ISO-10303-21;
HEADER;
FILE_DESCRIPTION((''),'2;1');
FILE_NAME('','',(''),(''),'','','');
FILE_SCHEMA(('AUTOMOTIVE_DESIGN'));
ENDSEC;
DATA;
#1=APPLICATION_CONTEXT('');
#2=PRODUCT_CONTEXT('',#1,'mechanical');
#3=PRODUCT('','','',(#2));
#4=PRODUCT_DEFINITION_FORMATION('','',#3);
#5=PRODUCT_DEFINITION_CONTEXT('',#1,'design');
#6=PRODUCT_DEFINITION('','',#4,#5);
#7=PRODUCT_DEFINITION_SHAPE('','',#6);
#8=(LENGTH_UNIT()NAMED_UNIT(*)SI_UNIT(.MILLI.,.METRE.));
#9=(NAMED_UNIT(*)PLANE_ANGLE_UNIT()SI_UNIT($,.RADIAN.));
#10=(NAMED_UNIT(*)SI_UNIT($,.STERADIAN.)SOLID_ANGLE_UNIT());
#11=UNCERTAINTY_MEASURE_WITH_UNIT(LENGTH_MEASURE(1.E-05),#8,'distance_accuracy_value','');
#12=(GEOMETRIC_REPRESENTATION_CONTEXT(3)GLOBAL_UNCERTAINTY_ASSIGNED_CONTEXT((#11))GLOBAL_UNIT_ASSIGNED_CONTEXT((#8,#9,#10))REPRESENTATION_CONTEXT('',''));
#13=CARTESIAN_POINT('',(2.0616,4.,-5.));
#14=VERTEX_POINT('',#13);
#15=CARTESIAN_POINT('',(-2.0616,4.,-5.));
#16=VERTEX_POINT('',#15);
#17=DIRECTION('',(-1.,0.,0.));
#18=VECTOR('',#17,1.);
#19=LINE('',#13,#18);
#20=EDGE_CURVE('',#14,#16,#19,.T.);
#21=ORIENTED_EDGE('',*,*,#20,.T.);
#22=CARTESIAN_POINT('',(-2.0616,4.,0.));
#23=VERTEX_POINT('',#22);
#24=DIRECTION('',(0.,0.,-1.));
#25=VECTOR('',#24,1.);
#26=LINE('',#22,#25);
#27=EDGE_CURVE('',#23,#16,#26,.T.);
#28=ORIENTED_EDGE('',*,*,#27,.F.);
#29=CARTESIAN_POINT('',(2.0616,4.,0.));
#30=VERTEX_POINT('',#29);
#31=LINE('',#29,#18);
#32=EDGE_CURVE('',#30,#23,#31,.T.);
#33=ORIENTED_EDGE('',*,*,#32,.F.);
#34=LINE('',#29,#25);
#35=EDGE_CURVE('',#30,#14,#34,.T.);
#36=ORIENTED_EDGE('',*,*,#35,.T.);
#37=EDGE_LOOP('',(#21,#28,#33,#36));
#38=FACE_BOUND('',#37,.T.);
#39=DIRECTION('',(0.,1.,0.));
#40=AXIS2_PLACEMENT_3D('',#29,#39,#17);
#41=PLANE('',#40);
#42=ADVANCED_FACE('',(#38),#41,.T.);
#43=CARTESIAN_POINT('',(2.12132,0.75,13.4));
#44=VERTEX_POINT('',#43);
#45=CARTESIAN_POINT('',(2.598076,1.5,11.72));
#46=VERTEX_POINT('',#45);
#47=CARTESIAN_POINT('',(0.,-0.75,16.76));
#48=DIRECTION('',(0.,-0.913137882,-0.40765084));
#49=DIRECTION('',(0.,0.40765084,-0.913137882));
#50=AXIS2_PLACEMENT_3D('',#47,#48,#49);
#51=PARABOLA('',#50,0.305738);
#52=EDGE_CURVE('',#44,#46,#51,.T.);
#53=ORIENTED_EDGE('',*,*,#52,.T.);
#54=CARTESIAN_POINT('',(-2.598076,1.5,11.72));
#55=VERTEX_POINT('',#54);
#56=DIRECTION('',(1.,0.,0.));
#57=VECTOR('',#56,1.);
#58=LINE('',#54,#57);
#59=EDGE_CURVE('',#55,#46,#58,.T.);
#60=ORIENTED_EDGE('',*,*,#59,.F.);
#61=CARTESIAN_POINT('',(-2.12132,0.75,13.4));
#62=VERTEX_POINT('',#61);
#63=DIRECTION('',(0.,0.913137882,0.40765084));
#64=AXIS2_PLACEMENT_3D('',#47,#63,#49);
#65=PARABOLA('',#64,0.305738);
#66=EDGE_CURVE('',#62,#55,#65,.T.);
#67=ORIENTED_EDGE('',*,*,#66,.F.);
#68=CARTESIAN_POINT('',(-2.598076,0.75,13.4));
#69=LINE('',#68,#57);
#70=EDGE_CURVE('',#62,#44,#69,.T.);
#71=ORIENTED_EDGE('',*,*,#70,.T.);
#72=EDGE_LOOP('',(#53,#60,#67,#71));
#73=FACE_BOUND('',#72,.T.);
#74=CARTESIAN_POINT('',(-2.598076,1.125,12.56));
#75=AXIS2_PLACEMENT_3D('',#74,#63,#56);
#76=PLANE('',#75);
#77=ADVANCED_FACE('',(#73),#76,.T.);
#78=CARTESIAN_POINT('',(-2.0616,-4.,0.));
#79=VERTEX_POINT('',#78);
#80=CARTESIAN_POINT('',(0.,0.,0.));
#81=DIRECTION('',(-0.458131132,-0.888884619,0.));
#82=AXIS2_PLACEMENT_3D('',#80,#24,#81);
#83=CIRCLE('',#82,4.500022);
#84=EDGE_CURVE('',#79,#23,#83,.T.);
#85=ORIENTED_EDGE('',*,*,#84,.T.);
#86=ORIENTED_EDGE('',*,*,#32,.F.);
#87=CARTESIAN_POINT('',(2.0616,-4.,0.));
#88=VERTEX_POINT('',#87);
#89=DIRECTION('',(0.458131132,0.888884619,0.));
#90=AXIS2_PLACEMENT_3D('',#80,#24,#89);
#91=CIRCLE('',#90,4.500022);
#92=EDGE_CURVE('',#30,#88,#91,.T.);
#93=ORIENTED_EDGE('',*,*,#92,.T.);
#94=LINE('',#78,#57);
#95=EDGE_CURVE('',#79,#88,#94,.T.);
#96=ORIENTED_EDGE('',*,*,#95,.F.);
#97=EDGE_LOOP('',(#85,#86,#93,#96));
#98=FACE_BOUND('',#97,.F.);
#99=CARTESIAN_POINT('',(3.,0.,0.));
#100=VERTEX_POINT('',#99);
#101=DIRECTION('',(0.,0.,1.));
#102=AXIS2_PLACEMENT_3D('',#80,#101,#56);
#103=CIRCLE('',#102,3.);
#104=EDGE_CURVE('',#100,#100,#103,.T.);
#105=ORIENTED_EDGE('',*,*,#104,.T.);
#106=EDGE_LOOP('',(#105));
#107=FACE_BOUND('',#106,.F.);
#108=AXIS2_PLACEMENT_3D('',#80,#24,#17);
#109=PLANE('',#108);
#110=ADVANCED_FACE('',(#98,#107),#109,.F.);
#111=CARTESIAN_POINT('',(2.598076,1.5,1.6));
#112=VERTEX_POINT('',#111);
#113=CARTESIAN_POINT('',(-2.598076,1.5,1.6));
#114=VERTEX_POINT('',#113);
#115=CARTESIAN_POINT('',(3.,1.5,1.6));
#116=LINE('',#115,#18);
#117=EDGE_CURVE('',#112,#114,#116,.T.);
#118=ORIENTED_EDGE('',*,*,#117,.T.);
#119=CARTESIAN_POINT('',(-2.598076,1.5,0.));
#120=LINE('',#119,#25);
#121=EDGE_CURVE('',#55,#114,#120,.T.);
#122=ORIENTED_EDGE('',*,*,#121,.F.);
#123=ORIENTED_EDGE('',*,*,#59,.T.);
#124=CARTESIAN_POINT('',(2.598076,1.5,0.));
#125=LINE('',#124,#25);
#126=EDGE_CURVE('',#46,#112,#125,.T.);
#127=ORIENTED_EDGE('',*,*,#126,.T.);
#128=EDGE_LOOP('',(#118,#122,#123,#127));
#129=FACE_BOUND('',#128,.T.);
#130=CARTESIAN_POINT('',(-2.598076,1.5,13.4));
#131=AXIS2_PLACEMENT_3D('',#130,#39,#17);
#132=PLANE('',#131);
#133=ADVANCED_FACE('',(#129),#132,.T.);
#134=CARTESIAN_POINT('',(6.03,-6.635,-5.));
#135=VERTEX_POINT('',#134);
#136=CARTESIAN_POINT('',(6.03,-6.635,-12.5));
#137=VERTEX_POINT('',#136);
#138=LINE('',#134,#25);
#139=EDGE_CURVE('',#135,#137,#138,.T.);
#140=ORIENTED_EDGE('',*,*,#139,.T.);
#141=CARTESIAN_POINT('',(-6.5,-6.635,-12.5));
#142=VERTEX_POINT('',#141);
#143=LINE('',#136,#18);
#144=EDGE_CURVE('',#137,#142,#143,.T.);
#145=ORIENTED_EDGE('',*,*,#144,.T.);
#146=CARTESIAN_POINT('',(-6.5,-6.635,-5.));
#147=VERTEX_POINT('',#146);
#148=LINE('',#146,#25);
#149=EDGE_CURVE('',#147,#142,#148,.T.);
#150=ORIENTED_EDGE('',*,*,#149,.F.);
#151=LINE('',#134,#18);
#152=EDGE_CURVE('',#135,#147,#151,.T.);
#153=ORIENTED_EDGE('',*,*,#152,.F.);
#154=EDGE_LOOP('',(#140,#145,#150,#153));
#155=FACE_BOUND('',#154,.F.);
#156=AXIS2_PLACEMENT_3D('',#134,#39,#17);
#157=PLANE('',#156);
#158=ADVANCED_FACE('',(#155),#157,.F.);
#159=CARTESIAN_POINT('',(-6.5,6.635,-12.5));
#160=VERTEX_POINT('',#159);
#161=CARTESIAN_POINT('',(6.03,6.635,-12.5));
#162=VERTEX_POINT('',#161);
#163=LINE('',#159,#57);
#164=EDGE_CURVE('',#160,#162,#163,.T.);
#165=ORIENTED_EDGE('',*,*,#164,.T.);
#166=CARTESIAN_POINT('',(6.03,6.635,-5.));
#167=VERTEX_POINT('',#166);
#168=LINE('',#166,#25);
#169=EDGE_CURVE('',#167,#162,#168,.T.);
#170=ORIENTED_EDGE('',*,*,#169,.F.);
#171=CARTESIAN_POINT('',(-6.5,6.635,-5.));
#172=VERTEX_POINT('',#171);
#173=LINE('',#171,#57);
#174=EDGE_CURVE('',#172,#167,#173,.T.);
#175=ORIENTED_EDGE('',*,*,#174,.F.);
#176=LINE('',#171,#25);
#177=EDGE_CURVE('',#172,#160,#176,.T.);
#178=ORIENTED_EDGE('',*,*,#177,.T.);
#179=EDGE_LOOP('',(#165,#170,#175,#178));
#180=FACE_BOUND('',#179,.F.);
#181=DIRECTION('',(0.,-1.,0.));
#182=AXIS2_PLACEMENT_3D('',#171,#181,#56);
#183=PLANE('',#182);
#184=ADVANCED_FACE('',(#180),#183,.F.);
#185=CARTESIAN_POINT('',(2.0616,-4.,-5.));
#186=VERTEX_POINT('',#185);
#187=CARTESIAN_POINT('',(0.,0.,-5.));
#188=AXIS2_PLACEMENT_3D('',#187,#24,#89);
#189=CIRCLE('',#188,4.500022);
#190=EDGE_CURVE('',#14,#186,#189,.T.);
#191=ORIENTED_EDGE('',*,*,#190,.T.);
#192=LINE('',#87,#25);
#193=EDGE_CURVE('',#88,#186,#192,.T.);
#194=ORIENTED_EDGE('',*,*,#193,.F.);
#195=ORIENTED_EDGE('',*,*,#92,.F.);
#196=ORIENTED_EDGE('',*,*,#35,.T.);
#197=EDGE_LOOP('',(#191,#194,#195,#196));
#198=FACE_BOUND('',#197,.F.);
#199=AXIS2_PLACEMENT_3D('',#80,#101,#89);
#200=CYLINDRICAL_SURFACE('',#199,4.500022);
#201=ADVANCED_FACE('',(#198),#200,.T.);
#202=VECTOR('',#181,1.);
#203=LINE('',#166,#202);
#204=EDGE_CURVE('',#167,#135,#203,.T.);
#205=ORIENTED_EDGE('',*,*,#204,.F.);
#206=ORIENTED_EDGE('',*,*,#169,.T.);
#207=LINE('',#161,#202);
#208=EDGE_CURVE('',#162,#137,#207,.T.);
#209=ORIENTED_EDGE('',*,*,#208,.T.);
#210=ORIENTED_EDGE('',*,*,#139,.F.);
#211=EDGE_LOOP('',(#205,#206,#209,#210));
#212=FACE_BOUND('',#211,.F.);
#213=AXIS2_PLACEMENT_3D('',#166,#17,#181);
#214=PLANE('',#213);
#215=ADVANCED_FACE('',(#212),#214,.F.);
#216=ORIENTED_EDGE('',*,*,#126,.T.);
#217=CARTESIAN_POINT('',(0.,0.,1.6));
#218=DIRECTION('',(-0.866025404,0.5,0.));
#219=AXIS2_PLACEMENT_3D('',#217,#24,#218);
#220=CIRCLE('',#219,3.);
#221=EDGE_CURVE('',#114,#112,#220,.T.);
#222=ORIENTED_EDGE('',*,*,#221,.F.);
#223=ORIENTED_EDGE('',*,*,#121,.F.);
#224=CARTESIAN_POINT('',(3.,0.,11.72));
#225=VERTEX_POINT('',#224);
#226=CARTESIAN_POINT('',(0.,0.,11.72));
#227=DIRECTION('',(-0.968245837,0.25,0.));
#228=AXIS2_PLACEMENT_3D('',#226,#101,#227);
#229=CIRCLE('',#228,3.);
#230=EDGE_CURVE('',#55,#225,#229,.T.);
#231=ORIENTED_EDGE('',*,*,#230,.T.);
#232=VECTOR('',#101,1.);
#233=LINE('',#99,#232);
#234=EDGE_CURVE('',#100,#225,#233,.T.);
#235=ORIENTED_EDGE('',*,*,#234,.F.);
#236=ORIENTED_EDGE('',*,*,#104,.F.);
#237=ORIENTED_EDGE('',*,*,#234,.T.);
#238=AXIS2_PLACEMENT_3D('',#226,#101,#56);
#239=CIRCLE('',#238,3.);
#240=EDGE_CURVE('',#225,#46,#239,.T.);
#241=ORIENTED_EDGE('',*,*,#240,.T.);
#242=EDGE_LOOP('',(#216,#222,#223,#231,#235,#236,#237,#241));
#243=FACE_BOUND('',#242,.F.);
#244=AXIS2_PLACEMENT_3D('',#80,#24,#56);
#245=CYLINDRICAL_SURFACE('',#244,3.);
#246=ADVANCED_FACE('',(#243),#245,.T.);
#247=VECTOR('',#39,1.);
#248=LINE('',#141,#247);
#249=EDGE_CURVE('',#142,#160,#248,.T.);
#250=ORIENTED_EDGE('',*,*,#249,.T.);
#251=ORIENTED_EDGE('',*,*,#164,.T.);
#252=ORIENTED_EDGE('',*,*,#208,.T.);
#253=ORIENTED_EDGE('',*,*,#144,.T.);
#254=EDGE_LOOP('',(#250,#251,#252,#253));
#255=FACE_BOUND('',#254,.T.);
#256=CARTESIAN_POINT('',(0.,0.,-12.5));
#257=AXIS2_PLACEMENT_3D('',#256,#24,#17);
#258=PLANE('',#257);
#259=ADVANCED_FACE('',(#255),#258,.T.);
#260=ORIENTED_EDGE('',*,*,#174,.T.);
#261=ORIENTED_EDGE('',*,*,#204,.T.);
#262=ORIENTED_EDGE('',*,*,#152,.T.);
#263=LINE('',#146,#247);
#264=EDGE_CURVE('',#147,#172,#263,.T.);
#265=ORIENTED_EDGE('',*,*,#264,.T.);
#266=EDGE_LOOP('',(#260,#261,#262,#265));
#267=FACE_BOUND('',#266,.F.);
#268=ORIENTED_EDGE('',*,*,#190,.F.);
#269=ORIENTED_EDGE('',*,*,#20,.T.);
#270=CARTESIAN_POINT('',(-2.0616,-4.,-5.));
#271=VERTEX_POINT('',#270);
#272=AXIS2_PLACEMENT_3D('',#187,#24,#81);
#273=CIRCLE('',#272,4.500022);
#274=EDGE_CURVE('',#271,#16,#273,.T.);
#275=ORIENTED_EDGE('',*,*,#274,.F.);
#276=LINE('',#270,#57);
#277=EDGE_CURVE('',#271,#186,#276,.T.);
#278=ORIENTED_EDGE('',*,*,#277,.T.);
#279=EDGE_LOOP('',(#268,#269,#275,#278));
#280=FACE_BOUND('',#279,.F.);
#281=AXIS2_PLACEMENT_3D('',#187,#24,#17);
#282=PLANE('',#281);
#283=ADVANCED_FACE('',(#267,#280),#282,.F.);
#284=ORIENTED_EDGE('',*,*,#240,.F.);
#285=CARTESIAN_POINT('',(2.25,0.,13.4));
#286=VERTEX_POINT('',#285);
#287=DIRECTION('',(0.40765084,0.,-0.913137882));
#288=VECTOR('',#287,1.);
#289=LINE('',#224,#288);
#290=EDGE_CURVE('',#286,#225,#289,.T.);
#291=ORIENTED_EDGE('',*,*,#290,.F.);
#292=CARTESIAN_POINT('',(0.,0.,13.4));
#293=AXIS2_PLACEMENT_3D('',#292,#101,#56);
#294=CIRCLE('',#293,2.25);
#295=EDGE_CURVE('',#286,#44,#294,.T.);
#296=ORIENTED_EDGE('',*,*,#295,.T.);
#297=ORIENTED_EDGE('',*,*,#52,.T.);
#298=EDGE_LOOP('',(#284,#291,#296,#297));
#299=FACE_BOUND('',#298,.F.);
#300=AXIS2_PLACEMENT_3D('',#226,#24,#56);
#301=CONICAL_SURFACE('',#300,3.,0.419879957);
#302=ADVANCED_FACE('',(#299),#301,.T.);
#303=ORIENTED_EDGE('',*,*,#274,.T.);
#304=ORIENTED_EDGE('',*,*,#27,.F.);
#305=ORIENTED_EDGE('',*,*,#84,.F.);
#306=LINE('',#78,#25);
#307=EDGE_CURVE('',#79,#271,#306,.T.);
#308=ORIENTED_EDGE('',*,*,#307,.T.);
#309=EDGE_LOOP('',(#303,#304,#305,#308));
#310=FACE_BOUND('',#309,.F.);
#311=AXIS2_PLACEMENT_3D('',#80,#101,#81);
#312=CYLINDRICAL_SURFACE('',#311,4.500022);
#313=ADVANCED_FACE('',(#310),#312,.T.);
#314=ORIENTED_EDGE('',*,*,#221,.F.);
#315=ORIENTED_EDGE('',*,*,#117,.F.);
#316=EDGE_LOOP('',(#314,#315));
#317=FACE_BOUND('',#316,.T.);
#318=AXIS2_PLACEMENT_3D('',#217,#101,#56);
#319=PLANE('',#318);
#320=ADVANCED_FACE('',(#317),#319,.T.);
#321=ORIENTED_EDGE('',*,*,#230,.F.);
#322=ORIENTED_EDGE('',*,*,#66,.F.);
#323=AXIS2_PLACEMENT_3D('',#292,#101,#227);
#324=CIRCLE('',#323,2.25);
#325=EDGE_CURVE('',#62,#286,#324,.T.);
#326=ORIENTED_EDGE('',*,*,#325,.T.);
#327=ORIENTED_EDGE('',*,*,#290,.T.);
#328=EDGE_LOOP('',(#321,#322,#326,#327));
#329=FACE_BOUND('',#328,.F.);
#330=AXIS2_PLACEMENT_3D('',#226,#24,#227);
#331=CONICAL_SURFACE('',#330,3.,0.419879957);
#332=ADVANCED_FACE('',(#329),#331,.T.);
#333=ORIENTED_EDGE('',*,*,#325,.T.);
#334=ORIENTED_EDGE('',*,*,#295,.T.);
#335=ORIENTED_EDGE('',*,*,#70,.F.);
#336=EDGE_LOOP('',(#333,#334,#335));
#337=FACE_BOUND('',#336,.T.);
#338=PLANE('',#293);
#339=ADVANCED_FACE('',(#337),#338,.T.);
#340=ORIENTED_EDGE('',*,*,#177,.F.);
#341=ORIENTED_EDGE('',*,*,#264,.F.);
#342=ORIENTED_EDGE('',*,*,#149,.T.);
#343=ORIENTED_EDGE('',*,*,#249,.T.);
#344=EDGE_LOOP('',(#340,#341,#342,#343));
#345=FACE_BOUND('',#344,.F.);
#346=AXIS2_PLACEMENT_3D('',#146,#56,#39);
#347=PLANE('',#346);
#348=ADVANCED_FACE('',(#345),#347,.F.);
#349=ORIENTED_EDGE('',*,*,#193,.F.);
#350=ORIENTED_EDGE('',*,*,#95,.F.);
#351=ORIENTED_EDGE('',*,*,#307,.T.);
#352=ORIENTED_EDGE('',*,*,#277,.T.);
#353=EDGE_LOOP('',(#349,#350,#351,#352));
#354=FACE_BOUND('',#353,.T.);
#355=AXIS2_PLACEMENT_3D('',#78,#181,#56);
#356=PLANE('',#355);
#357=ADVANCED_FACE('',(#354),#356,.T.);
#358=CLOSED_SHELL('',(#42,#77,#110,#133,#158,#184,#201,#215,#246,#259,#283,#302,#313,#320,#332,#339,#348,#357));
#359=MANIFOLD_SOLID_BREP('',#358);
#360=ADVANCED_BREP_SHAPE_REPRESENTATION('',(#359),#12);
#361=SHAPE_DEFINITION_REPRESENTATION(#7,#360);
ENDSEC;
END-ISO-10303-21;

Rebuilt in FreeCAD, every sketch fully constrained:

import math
import FreeCAD as App
import Part
import Sketcher
from FreeCAD import Vector
Q = App.Units.Quantity


def edges_at(feature, points):
    """Names of the edges that pass closest to the given points."""
    edges = feature.Shape.Edges
    near = lambda p: min(range(len(edges)), key=lambda i: edges[i].distToShape(Part.Vertex(*p))[0])
    return sorted({f"Edge{near(p) + 1}" for p in points})


def add_polygon(sketch, points):
    """Adds a closed chain of lines whose ends are joined by coincident constraints."""
    first, n = sketch.GeometryCount, len(points)
    for a, b in zip(points, points[1:] + points[:1]):
        sketch.addGeometry(Part.LineSegment(App.Vector(*a, 0), App.Vector(*b, 0)), False)
    for i in range(n):
        sketch.addConstraint(Sketcher.Constraint("Coincident", first + i, 2, first + (i + 1) % n, 1))

doc = App.newDocument("Part")
body = doc.addObject("PartDesign::Body", "Body")

# Sketch on XY plane
sketch1 = doc.addObject("Sketcher::SketchObject", "Sketch")
body.addObject(sketch1)
sketch1.AttachmentSupport = (doc.XY_Plane, [""])
sketch1.MapMode = "FlatFace"
sketch1.addGeometry(Part.Circle(Vector(0, 0, 0), Vector(0, 0, 1), 3), False)
sketch1.addConstraint(Sketcher.Constraint("Coincident", 0, 3, -1, 1))
sketch1.addConstraint(Sketcher.Constraint("Diameter", 0, Q("6 mm")))
pad1 = doc.addObject("PartDesign::Pad", "Pad")
body.addObject(pad1)
pad1.Profile = sketch1
pad1.Length = 13.4

# Sketch on XY plane
sketch2 = doc.addObject("Sketcher::SketchObject", "Sketch001")
body.addObject(sketch2)
sketch2.AttachmentSupport = (doc.XY_Plane, [""])
sketch2.MapMode = "FlatFace"
sketch2.AttachmentOffset = App.Placement(Vector(0, 0, 13.4), App.Rotation())
add_polygon(sketch2, [(-3, 3), (-3, 1.5), (3, 1.5), (3, 3)])  # lines 0-3
sketch2.addConstraint(Sketcher.Constraint("Vertical", 0))
sketch2.addConstraint(Sketcher.Constraint("Horizontal", 1))
sketch2.addConstraint(Sketcher.Constraint("Vertical", 2))
sketch2.addConstraint(Sketcher.Constraint("Horizontal", 3))
sketch2.addConstraint(Sketcher.Constraint("DistanceY", 0, 2, 0, 1, Q("1.5 mm")))
sketch2.addConstraint(Sketcher.Constraint("DistanceY", -1, 1, 0, 2, Q("1.5 mm")))
sketch2.addConstraint(Sketcher.Constraint("DistanceX", 1, 1, 1, 2, Q("6 mm")))
sketch2.addConstraint(Sketcher.Constraint("DistanceX", 0, 2, -1, 1, Q("3 mm")))
pocket1 = doc.addObject("PartDesign::Pocket", "Pocket")
body.addObject(pocket1)
pocket1.Profile = sketch2
pocket1.Length = 11.8

# Sketch on XY plane
sketch3 = doc.addObject("Sketcher::SketchObject", "Sketch002")
body.addObject(sketch3)
sketch3.AttachmentSupport = (doc.XY_Plane, [""])
sketch3.MapMode = "FlatFace"
sketch3.addGeometry(Part.LineSegment(Vector(-2.1, 4, 0), Vector(2.1, 4, 0)), False)
sketch3.addGeometry(Part.ArcOfCircle(Part.Circle(Vector(0, 0, 0), Vector(0, 0, 1), 4.5), math.radians(-63), math.radians(63)), False)
sketch3.addGeometry(Part.LineSegment(Vector(2.1, -4, 0), Vector(-2.1, -4, 0)), False)
sketch3.addGeometry(Part.ArcOfCircle(Part.Circle(Vector(0, 0, 0), Vector(0, 0, 1), 4.5), math.radians(117), math.radians(243)), False)
sketch3.addConstraint(Sketcher.Constraint("Coincident", 0, 2, 1, 2))
sketch3.addConstraint(Sketcher.Constraint("Coincident", 1, 1, 2, 1))
sketch3.addConstraint(Sketcher.Constraint("Coincident", 2, 2, 3, 2))
sketch3.addConstraint(Sketcher.Constraint("Coincident", 3, 1, 0, 1))
sketch3.addConstraint(Sketcher.Constraint("Horizontal", 0))
sketch3.addConstraint(Sketcher.Constraint("Horizontal", 2))
sketch3.addConstraint(Sketcher.Constraint("Coincident", 1, 3, -1, 1))
sketch3.addConstraint(Sketcher.Constraint("Coincident", 3, 3, -1, 1))
sketch3.addConstraint(Sketcher.Constraint("Equal", 1, 3))
sketch3.addConstraint(Sketcher.Constraint("Vertical", 0, 2, 1, 1))
sketch3.addConstraint(Sketcher.Constraint("Radius", 1, Q("4.5 mm")))
sketch3.addConstraint(Sketcher.Constraint("DistanceY", 1, 1, 0, 2, Q("8 mm")))
pad2 = doc.addObject("PartDesign::Pad", "Pad001")
body.addObject(pad2)
pad2.Profile = sketch3
pad2.Length = 5
pad2.Reversed = True

# Sketch on XY plane
sketch4 = doc.addObject("Sketcher::SketchObject", "Sketch003")
body.addObject(sketch4)
sketch4.AttachmentSupport = (doc.XY_Plane, [""])
sketch4.MapMode = "FlatFace"
sketch4.AttachmentOffset = App.Placement(Vector(0, 0, -5), App.Rotation())
add_polygon(sketch4, [(-6, -7), (-6, 7), (6, 7), (6, -7)])  # lines 0-3
sketch4.addConstraint(Sketcher.Constraint("Vertical", 0))
sketch4.addConstraint(Sketcher.Constraint("Horizontal", 1))
sketch4.addConstraint(Sketcher.Constraint("Vertical", 2))
sketch4.addConstraint(Sketcher.Constraint("Horizontal", 3))
sketch4.addConstraint(Sketcher.Constraint("DistanceX", 1, 1, 1, 2, Q("12.53 mm")))
sketch4.addConstraint(Sketcher.Constraint("DistanceY", 0, 1, 0, 2, Q("13.27 mm")))
sketch4.addConstraint(Sketcher.Constraint("DistanceX", 0, 2, -1, 1, Q("6.5 mm")))
sketch4.addConstraint(Sketcher.Constraint("DistanceY", -1, 1, 0, 2, Q("6.635 mm")))
pad3 = doc.addObject("PartDesign::Pad", "Pad002")
body.addObject(pad3)
pad3.Profile = sketch4
pad3.Length = 7.5
pad3.Reversed = True
doc.recompute()

chamfer = doc.addObject("PartDesign::Chamfer", "Chamfer")
body.addObject(chamfer)
chamfer.Base = (pad3, edges_at(pad3, [(0, 1.5, 13.4)]))
chamfer.ChamferType = "Two distances"
chamfer.Size = 0.75
chamfer.Size2 = 1.68
doc.recompute()

chamfer2 = doc.addObject("PartDesign::Chamfer", "Chamfer001")
body.addObject(chamfer2)
chamfer2.Base = (chamfer, edges_at(chamfer, [(2.976, 0.378, 13.4), (-0.378, -2.976, 13.4)]))
chamfer2.ChamferType = "Two distances"
chamfer2.Size = 0.75
chamfer2.Size2 = 1.68
chamfer2.FlipDirection = True

doc.recompute()
